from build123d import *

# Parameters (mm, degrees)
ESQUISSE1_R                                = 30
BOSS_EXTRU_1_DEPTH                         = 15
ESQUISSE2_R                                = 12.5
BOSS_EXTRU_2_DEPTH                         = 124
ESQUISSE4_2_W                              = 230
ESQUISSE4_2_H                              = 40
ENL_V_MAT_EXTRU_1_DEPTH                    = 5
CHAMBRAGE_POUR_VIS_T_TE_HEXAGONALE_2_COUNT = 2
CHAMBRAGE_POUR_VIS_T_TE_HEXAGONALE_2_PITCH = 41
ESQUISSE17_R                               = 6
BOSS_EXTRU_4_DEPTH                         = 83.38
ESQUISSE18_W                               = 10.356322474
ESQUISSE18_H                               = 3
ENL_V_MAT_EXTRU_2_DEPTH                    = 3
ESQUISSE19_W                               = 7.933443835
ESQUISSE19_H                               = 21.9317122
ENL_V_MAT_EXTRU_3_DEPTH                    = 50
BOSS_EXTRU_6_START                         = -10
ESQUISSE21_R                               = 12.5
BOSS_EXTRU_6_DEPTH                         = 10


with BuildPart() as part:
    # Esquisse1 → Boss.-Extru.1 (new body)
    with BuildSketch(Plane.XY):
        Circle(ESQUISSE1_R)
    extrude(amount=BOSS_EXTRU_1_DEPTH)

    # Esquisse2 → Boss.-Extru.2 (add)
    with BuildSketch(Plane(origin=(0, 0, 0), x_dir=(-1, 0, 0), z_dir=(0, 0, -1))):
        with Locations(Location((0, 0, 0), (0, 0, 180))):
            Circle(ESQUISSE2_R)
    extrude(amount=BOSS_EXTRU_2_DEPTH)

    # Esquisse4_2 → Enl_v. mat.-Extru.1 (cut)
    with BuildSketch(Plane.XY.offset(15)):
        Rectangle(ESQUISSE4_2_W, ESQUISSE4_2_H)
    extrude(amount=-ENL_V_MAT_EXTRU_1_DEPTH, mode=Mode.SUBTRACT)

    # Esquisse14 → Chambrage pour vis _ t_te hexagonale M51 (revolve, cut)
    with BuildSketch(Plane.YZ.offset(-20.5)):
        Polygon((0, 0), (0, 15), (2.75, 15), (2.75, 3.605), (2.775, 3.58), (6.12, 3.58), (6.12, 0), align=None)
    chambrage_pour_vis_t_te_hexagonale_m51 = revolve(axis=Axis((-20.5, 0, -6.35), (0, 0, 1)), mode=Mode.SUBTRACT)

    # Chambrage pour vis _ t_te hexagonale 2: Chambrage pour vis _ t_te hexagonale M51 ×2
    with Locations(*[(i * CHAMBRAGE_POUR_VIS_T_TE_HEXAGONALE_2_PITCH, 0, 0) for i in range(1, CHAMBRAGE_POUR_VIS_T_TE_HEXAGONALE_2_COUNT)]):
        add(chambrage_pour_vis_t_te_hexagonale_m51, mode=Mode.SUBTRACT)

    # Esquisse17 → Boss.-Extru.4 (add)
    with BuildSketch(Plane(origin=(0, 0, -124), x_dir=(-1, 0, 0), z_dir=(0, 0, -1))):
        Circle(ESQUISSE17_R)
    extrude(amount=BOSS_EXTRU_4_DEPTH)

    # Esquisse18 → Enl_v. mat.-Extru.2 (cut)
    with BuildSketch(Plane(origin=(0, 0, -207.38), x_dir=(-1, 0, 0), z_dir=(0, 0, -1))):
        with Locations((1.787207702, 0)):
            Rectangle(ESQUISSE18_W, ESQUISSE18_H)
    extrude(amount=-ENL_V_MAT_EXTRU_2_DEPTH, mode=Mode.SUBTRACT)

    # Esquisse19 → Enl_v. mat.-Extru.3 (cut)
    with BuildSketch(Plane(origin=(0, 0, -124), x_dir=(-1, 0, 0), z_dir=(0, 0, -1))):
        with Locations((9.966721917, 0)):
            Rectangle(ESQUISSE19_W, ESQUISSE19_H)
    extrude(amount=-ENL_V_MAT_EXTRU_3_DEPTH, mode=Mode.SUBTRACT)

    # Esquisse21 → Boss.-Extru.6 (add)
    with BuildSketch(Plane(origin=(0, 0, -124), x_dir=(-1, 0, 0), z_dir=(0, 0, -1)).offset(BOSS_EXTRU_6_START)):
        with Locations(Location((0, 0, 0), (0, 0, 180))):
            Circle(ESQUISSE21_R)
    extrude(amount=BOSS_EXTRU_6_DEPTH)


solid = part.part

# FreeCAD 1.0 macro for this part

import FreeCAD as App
import Part
import Sketcher
Q = App.Units.Quantity

doc = App.newDocument("Part")
body = doc.addObject("PartDesign::Body", "Body")

sketch1 = body.newObject("Sketcher::SketchObject", "Sketch")
sketch1.AttachmentSupport = (doc.getObject("XY_Plane"), [""])
sketch1.MapMode = "FlatFace"
sketch1.addGeometry(Part.Circle(App.Vector(0, 0, 0), App.Vector(0, 0, 1), 30), False)
sketch1.addConstraint([
    Sketcher.Constraint("Coincident", 0, 3, -1, 1),
    Sketcher.Constraint("Diameter", 0, Q("60 mm")),
])
pad1 = body.newObject("PartDesign::Pad", "Pad")
pad1.Profile = sketch1
pad1.Length = 15

sketch2 = body.newObject("Sketcher::SketchObject", "Sketch001")
sketch2.AttachmentSupport = (doc.getObject("XY_Plane"), [""])
sketch2.MapMode = "FlatFace"
sketch2.addGeometry(Part.Circle(App.Vector(0, 0, 0), App.Vector(0, 0, 1), 12), False)
sketch2.addConstraint([
    Sketcher.Constraint("Coincident", 0, 3, -1, 1),
    Sketcher.Constraint("Diameter", 0, Q("25 mm")),
])
pad2 = body.newObject("PartDesign::Pad", "Pad001")
pad2.Profile = sketch2
pad2.Length = 124
pad2.Reversed = True

sketch3 = body.newObject("Sketcher::SketchObject", "Sketch002")
sketch3.AttachmentSupport = (doc.getObject("XY_Plane"), [""])
sketch3.MapMode = "FlatFace"
sketch3.AttachmentOffset = App.Placement(App.Vector(0, 0, 15), App.Rotation())
sketch3.addGeometry([
    Part.LineSegment(App.Vector(-115, 20, 0), App.Vector(-115, -20, 0)),
    Part.LineSegment(App.Vector(-115, -20, 0), App.Vector(115, -20, 0)),
    Part.LineSegment(App.Vector(115, -20, 0), App.Vector(115, 20, 0)),
    Part.LineSegment(App.Vector(115, 20, 0), App.Vector(-115, 20, 0)),
], False)
sketch3.addConstraint([
    Sketcher.Constraint("Coincident", 0, 2, 1, 1),
    Sketcher.Constraint("Coincident", 1, 2, 2, 1),
    Sketcher.Constraint("Coincident", 2, 2, 3, 1),
    Sketcher.Constraint("Coincident", 3, 2, 0, 1),
    Sketcher.Constraint("Vertical", 0),
    Sketcher.Constraint("Horizontal", 1),
    Sketcher.Constraint("Vertical", 2),
    Sketcher.Constraint("Horizontal", 3),
    Sketcher.Constraint("Symmetric", 0, 2, 2, 2, -1, 1),
    Sketcher.Constraint("DistanceX", 1, 1, 1, 2, Q("230 mm")),
    Sketcher.Constraint("DistanceY", 0, 2, 0, 1, Q("40 mm")),
])
pocket1 = body.newObject("PartDesign::Pocket", "Pocket")
pocket1.Profile = sketch3
pocket1.Length = 5

sketch4 = body.newObject("Sketcher::SketchObject", "Sketch003")
sketch4.AttachmentSupport = (doc.getObject("YZ_Plane"), [""])
sketch4.MapMode = "FlatFace"
sketch4.AttachmentOffset = App.Placement(App.Vector(0, 0, -20.5), App.Rotation())
sketch4.addGeometry([
    Part.LineSegment(App.Vector(0, 15, 0), App.Vector(0, 0, 0)),
    Part.LineSegment(App.Vector(0, 0, 0), App.Vector(6.12, 0, 0)),
    Part.LineSegment(App.Vector(6.12, 0, 0), App.Vector(6.12, 3.58, 0)),
    Part.LineSegment(App.Vector(6.12, 3.58, 0), App.Vector(2.775, 3.58, 0)),
    Part.LineSegment(App.Vector(2.775, 3.58, 0), App.Vector(2.75, 3.605, 0)),
    Part.LineSegment(App.Vector(2.75, 3.605, 0), App.Vector(2.75, 15, 0)),
    Part.LineSegment(App.Vector(2.75, 15, 0), App.Vector(0, 15, 0)),
], False)
sketch4.addConstraint([
    Sketcher.Constraint("Coincident", 0, 2, 1, 1),
    Sketcher.Constraint("Coincident", 1, 2, 2, 1),
    Sketcher.Constraint("Coincident", 2, 2, 3, 1),
    Sketcher.Constraint("Coincident", 3, 2, 4, 1),
    Sketcher.Constraint("Coincident", 4, 2, 5, 1),
    Sketcher.Constraint("Coincident", 5, 2, 6, 1),
    Sketcher.Constraint("Coincident", 6, 2, 0, 1),
    Sketcher.Constraint("Vertical", 0),
    Sketcher.Constraint("Horizontal", 1),
    Sketcher.Constraint("Vertical", 2),
    Sketcher.Constraint("Horizontal", 3),
    Sketcher.Constraint("Vertical", 5),
    Sketcher.Constraint("Horizontal", 6),
    Sketcher.Constraint("Coincident", 0, 2, -1, 1),
    Sketcher.Constraint("DistanceY", 0, 2, 0, 1, Q("15 mm")),
    Sketcher.Constraint("Angle", 4, Q("135 deg")),
    Sketcher.Constraint("DistanceX", 1, 1, 1, 2, Q("6.12 mm")),
    Sketcher.Constraint("DistanceX", 6, 2, 6, 1, Q("2.75 mm")),
    Sketcher.Constraint("DistanceY", 2, 1, 2, 2, Q("3.58 mm")),
    Sketcher.Constraint("DistanceX", 3, 2, 3, 1, Q("3.345 mm")),
])
groove = body.newObject("PartDesign::Groove", "Groove")
groove.Profile = sketch4
groove.ReferenceAxis = (sketch4, ["V_Axis"])
groove.Angle = 360
doc.recompute()

linearpattern = body.newObject("PartDesign::LinearPattern", "LinearPattern")
linearpattern.Originals = [groove]
linearpattern.Direction = (doc.getObject("X_Axis"), [""])
linearpattern.Mode = "offset"
linearpattern.Offset = 41
linearpattern.Occurrences = 2
body.Tip = linearpattern

sketch5 = body.newObject("Sketcher::SketchObject", "Sketch004")
sketch5.AttachmentSupport = (doc.getObject("XY_Plane"), [""])
sketch5.MapMode = "FlatFace"
sketch5.AttachmentOffset = App.Placement(App.Vector(0, 0, -124), App.Rotation())
sketch5.addGeometry(Part.Circle(App.Vector(0, 0, 0), App.Vector(0, 0, 1), 6), False)
sketch5.addConstraint([
    Sketcher.Constraint("Coincident", 0, 3, -1, 1),
    Sketcher.Constraint("Diameter", 0, Q("12 mm")),
])
pad3 = body.newObject("PartDesign::Pad", "Pad002")
pad3.Profile = sketch5
pad3.Length = 83.38
pad3.Reversed = True

sketch6 = body.newObject("Sketcher::SketchObject", "Sketch005")
sketch6.AttachmentSupport = (doc.getObject("XY_Plane"), [""])
sketch6.MapMode = "FlatFace"
sketch6.AttachmentOffset = App.Placement(App.Vector(0, 0, -207.38), App.Rotation())
sketch6.addGeometry([
    Part.LineSegment(App.Vector(3.4, 1.5, 0), App.Vector(3.4, -1.5, 0)),
    Part.LineSegment(App.Vector(3.4, -1.5, 0), App.Vector(-7, -1.5, 0)),
    Part.LineSegment(App.Vector(-7, -1.5, 0), App.Vector(-7, 1.5, 0)),
    Part.LineSegment(App.Vector(-7, 1.5, 0), App.Vector(3.4, 1.5, 0)),
], False)
sketch6.addConstraint([
    Sketcher.Constraint("Coincident", 0, 2, 1, 1),
    Sketcher.Constraint("Coincident", 1, 2, 2, 1),
    Sketcher.Constraint("Coincident", 2, 2, 3, 1),
    Sketcher.Constraint("Coincident", 3, 2, 0, 1),
    Sketcher.Constraint("Vertical", 0),
    Sketcher.Constraint("Horizontal", 1),
    Sketcher.Constraint("Vertical", 2),
    Sketcher.Constraint("Horizontal", 3),
    Sketcher.Constraint("DistanceY", 0, 2, 0, 1, Q("3 mm")),
    Sketcher.Constraint("DistanceY", 0, 2, -1, 1, Q("1.5 mm")),
    Sketcher.Constraint("DistanceX", 1, 2, 1, 1, Q("10.356322 mm")),
    Sketcher.Constraint("DistanceX", 1, 2, -1, 1, Q("6.965369 mm")),
])
pocket2 = body.newObject("PartDesign::Pocket", "Pocket001")
pocket2.Profile = sketch6
pocket2.Length = 3
pocket2.Reversed = True

sketch7 = body.newObject("Sketcher::SketchObject", "Sketch006")
sketch7.AttachmentSupport = (doc.getObject("XY_Plane"), [""])
sketch7.MapMode = "FlatFace"
sketch7.AttachmentOffset = App.Placement(App.Vector(0, 0, -124), App.Rotation())
sketch7.addGeometry([
    Part.LineSegment(App.Vector(-6, 11, 0), App.Vector(-6, -11, 0)),
    Part.LineSegment(App.Vector(-6, -11, 0), App.Vector(-14, -11, 0)),
    Part.LineSegment(App.Vector(-14, -11, 0), App.Vector(-14, 11, 0)),
    Part.LineSegment(App.Vector(-14, 11, 0), App.Vector(-6, 11, 0)),
], False)
sketch7.addConstraint([
    Sketcher.Constraint("Coincident", 0, 2, 1, 1),
    Sketcher.Constraint("Coincident", 1, 2, 2, 1),
    Sketcher.Constraint("Coincident", 2, 2, 3, 1),
    Sketcher.Constraint("Coincident", 3, 2, 0, 1),
    Sketcher.Constraint("Vertical", 0),
    Sketcher.Constraint("Horizontal", 1),
    Sketcher.Constraint("Vertical", 2),
    Sketcher.Constraint("Horizontal", 3),
    Sketcher.Constraint("DistanceX", 0, 2, -1, 1, Q("6 mm")),
    Sketcher.Constraint("DistanceX", 1, 2, 1, 1, Q("7.933444 mm")),
    Sketcher.Constraint("DistanceY", 0, 2, 0, 1, Q("21.931712 mm")),
    Sketcher.Constraint("DistanceY", 0, 2, -1, 1, Q("10.965856 mm")),
])
pocket3 = body.newObject("PartDesign::Pocket", "Pocket002")
pocket3.Profile = sketch7
pocket3.Length = 50
pocket3.Reversed = True

sketch8 = body.newObject("Sketcher::SketchObject", "Sketch007")
sketch8.AttachmentSupport = (doc.getObject("XY_Plane"), [""])
sketch8.MapMode = "FlatFace"
sketch8.AttachmentOffset = App.Placement(App.Vector(0, 0, -114), App.Rotation())
sketch8.addGeometry(Part.Circle(App.Vector(0, 0, 0), App.Vector(0, 0, 1), 12), False)
sketch8.addConstraint([
    Sketcher.Constraint("Coincident", 0, 3, -1, 1),
    Sketcher.Constraint("Diameter", 0, Q("25 mm")),
])
pad4 = body.newObject("PartDesign::Pad", "Pad003")
pad4.Profile = sketch8
pad4.Length = 10
pad4.Reversed = True

doc.recompute()
